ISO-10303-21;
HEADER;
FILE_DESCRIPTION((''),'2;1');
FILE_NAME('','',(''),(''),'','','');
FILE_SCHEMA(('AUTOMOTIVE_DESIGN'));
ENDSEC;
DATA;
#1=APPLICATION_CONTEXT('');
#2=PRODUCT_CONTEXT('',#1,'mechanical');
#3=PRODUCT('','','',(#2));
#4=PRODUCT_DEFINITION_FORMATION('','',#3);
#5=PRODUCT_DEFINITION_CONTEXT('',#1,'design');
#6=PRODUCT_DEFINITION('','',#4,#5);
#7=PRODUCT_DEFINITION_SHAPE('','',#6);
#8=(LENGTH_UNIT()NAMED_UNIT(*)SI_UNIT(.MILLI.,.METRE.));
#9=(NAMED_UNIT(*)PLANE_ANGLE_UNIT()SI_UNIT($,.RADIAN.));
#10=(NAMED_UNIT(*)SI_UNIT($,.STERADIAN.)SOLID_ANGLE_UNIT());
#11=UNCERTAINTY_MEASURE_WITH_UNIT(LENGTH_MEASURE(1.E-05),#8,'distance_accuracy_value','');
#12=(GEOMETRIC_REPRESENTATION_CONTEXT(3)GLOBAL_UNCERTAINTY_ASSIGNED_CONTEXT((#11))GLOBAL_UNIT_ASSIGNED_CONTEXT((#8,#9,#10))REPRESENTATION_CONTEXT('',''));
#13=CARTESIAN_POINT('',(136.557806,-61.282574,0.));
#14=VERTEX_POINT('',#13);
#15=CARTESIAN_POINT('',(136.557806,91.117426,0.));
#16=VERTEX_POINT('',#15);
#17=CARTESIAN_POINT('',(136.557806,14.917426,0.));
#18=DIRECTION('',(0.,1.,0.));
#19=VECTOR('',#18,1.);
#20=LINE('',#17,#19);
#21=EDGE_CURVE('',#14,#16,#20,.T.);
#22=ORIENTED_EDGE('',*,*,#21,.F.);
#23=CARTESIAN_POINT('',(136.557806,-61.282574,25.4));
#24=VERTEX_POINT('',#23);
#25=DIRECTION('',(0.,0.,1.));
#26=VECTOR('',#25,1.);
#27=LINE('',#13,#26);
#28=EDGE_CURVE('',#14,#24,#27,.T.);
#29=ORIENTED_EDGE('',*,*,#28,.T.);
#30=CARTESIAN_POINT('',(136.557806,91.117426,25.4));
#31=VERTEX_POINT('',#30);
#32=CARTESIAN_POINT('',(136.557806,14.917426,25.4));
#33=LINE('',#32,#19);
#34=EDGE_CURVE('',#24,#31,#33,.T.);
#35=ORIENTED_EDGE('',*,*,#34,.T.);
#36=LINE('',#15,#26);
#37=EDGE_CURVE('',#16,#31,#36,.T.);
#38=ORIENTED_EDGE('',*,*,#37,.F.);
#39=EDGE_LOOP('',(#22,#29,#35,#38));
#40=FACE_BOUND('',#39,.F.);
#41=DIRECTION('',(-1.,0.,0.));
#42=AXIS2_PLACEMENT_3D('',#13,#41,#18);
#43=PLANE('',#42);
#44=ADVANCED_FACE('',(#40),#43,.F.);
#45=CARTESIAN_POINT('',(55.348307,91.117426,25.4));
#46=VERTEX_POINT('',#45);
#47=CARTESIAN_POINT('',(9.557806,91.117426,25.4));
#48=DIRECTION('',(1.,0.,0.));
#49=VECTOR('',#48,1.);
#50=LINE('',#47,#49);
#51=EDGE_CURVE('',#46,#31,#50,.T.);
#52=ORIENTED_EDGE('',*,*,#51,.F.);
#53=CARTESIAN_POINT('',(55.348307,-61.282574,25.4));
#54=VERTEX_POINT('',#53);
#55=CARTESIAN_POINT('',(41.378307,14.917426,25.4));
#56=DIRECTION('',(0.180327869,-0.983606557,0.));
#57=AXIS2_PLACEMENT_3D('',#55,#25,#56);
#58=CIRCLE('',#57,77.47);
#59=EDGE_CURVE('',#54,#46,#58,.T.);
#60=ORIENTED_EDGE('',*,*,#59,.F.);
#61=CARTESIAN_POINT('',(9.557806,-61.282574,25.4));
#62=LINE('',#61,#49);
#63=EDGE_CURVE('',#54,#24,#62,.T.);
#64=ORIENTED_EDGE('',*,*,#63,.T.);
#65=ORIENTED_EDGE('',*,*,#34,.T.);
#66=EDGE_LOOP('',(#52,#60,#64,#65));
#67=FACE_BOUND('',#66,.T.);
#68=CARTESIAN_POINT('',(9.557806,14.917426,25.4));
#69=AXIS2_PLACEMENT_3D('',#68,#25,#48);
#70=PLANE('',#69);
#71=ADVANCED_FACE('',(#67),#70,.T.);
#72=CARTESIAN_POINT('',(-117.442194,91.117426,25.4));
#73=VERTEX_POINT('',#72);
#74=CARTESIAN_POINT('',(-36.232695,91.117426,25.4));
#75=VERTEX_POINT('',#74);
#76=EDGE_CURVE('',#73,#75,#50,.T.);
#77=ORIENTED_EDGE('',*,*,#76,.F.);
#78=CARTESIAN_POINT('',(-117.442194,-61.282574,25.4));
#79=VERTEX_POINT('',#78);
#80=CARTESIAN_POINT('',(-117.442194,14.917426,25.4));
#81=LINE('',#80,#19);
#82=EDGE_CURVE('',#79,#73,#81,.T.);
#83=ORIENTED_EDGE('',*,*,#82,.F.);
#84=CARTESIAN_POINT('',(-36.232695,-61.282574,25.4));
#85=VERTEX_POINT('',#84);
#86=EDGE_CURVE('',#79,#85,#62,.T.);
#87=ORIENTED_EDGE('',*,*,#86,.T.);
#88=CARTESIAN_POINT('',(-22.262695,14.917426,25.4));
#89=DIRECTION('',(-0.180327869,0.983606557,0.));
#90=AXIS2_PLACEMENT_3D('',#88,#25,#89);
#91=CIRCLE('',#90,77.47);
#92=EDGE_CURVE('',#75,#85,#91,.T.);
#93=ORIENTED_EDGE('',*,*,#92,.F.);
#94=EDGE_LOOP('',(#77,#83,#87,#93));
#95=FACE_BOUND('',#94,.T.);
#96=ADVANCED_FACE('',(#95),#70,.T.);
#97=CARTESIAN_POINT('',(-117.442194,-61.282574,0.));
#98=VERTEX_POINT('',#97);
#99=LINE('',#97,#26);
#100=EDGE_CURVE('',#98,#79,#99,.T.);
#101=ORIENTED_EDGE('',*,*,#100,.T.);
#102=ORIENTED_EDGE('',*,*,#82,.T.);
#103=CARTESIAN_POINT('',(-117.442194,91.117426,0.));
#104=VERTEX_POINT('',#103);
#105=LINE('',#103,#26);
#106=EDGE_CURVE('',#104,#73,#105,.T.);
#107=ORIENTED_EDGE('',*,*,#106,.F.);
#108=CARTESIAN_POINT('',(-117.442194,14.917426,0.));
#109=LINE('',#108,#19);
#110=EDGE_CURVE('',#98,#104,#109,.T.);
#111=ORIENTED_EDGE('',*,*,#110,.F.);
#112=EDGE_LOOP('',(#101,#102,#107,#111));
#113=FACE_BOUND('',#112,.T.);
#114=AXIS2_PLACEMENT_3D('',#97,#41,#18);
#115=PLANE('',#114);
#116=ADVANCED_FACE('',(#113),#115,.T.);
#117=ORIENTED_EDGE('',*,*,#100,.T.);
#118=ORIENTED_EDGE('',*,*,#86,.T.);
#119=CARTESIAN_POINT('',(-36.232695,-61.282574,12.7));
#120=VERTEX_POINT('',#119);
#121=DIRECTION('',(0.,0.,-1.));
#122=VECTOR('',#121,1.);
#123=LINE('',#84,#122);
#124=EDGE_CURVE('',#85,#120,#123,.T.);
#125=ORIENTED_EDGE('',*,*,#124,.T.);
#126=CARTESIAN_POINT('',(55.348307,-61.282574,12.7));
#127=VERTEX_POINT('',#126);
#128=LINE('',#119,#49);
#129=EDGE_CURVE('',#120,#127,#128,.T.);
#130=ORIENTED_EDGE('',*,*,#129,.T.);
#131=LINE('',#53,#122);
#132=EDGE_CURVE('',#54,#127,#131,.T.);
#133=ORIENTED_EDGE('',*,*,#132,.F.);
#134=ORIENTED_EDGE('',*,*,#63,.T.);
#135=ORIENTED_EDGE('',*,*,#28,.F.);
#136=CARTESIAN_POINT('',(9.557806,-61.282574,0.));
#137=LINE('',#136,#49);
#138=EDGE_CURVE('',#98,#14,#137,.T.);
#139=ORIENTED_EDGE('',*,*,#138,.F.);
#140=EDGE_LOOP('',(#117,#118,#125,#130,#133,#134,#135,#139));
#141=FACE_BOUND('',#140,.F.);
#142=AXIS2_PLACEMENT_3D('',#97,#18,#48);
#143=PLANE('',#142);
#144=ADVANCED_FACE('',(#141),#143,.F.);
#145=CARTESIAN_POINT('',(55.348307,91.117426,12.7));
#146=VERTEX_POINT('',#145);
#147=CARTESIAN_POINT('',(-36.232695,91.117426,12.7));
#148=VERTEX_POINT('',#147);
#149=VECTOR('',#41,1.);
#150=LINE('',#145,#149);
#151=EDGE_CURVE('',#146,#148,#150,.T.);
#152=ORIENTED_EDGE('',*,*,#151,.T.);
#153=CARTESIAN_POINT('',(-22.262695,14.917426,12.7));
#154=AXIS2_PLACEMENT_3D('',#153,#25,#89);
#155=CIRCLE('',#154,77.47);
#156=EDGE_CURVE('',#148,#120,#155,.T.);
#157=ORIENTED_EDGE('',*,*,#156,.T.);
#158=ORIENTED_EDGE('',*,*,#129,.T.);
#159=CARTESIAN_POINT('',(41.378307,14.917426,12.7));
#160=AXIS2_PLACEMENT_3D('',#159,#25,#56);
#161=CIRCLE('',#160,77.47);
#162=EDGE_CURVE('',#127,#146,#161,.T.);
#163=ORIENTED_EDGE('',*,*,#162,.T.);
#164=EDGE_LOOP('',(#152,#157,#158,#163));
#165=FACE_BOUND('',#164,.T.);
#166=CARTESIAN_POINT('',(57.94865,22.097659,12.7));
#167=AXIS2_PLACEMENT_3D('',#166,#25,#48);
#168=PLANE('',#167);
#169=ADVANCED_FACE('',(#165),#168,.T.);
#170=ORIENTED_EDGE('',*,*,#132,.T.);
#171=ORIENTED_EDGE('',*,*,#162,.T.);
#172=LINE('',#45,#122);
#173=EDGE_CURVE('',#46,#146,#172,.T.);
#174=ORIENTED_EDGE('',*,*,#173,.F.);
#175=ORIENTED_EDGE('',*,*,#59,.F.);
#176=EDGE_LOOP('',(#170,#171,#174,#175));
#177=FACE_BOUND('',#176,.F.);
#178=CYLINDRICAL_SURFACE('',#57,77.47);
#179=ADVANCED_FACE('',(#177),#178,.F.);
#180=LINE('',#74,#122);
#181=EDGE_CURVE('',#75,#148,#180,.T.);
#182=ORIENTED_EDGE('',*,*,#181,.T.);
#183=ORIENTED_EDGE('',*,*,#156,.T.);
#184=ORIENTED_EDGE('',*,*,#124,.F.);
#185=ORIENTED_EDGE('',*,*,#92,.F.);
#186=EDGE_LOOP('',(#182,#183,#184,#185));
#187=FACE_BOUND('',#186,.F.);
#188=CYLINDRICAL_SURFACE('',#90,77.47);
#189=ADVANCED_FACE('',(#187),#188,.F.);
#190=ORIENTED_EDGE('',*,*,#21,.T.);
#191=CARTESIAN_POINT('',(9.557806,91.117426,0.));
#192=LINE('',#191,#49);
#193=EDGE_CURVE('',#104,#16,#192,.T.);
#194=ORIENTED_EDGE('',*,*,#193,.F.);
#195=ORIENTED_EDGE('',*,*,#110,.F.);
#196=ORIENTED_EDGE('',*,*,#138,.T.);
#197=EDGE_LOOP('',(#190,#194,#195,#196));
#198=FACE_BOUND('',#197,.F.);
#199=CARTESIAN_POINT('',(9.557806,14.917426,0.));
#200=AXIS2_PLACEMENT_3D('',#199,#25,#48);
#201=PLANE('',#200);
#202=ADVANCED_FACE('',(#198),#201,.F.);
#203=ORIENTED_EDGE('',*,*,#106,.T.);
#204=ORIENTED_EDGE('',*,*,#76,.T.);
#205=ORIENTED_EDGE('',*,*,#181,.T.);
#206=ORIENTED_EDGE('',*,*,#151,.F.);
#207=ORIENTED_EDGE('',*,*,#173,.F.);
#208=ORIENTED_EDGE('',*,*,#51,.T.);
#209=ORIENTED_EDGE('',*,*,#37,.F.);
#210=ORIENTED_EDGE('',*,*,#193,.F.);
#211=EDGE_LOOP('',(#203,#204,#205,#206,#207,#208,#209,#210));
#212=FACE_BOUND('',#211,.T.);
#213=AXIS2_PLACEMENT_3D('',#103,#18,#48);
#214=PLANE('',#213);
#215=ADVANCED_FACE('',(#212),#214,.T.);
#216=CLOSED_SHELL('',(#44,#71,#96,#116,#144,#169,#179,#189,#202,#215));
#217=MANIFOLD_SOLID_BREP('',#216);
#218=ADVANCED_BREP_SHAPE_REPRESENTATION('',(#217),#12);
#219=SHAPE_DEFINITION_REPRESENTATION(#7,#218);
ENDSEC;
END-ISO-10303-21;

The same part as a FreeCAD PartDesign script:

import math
import FreeCAD as App
import Part
import Sketcher
from FreeCAD import Vector
Q = App.Units.Quantity


def add_polygon(sketch, points):
    """Adds a closed chain of lines whose ends are joined by coincident constraints."""
    first, n = sketch.GeometryCount, len(points)
    for a, b in zip(points, points[1:] + points[:1]):
        sketch.addGeometry(Part.LineSegment(App.Vector(*a, 0), App.Vector(*b, 0)), False)
    for i in range(n):
        sketch.addConstraint(Sketcher.Constraint("Coincident", first + i, 2, first + (i + 1) % n, 1))

doc = App.newDocument("Part")
body = doc.addObject("PartDesign::Body", "Body")

# Sketch on XY plane
sketch1 = doc.addObject("Sketcher::SketchObject", "Sketch")
body.addObject(sketch1)
sketch1.AttachmentSupport = (doc.XY_Plane, [""])
sketch1.MapMode = "FlatFace"
add_polygon(sketch1, [(-117, 91), (-117, -61), (137, -61), (137, 91)])  # lines 0-3
sketch1.addConstraint([
    Sketcher.Constraint("Vertical", 0),
    Sketcher.Constraint("Horizontal", 1),
    Sketcher.Constraint("Vertical", 2),
    Sketcher.Constraint("Horizontal", 3),
    Sketcher.Constraint("DistanceX", 1, 1, 1, 2, Q("10 in")),
    Sketcher.Constraint("DistanceY", 0, 2, 0, 1, Q("6 in")),
    Sketcher.Constraint("DistanceX", 0, 2, -1, 1, 117.442194),
    Sketcher.Constraint("DistanceY", 0, 2, -1, 1, 61.282574),
])
pad1 = doc.addObject("PartDesign::Pad", "Pad")
body.addObject(pad1)
pad1.Profile = sketch1
pad1.Length = Q("1 in")

# Sketch on XY plane
sketch2 = doc.addObject("Sketcher::SketchObject", "Sketch001")
body.addObject(sketch2)
sketch2.AttachmentSupport = (doc.XY_Plane, [""])
sketch2.MapMode = "FlatFace"
sketch2.AttachmentOffset = App.Placement(Vector(0, 0, 1 * 25.4), App.Rotation())
sketch2.addGeometry([
    Part.LineSegment(Vector(55, 91, 0), Vector(-36, 91, 0)),
    Part.ArcOfCircle(Part.Circle(Vector(-22, 15, 0), Vector(0, 0, 1), 77), math.radians(100), math.radians(260)),
    Part.LineSegment(Vector(-36, -61, 0), Vector(55, -61, 0)),
    Part.ArcOfCircle(Part.Circle(Vector(41, 15, 0), Vector(0, 0, 1), 77), math.radians(-80), math.radians(80)),
], False)
sketch2.addConstraint([
    Sketcher.Constraint("Coincident", 0, 2, 1, 1),
    Sketcher.Constraint("Coincident", 1, 2, 2, 1),
    Sketcher.Constraint("Coincident", 2, 2, 3, 1),
    Sketcher.Constraint("Coincident", 3, 2, 0, 1),
    Sketcher.Constraint("Horizontal", 0),
    Sketcher.Constraint("Horizontal", 2),
    Sketcher.Constraint("Equal", 1, 3),
    Sketcher.Constraint("Horizontal", 1, 3, 3, 3),
    Sketcher.Constraint("Vertical", 0, 2, 1, 2),
    Sketcher.Constraint("Radius", 1, Q("3.05 in")),
    Sketcher.Constraint("DistanceY", 1, 3, 0, 2, Q("3 in")),
    Sketcher.Constraint("DistanceX", 0, 2, 0, 1, 91.581002),
    Sketcher.Constraint("DistanceX", 1, 3, -1, 1, 22.262695),
    Sketcher.Constraint("DistanceY", -1, 1, 1, 3, 14.917426),
])
pocket1 = doc.addObject("PartDesign::Pocket", "Pocket")
body.addObject(pocket1)
pocket1.Profile = sketch2
pocket1.Length = Q("0.5 in")

doc.recompute()
